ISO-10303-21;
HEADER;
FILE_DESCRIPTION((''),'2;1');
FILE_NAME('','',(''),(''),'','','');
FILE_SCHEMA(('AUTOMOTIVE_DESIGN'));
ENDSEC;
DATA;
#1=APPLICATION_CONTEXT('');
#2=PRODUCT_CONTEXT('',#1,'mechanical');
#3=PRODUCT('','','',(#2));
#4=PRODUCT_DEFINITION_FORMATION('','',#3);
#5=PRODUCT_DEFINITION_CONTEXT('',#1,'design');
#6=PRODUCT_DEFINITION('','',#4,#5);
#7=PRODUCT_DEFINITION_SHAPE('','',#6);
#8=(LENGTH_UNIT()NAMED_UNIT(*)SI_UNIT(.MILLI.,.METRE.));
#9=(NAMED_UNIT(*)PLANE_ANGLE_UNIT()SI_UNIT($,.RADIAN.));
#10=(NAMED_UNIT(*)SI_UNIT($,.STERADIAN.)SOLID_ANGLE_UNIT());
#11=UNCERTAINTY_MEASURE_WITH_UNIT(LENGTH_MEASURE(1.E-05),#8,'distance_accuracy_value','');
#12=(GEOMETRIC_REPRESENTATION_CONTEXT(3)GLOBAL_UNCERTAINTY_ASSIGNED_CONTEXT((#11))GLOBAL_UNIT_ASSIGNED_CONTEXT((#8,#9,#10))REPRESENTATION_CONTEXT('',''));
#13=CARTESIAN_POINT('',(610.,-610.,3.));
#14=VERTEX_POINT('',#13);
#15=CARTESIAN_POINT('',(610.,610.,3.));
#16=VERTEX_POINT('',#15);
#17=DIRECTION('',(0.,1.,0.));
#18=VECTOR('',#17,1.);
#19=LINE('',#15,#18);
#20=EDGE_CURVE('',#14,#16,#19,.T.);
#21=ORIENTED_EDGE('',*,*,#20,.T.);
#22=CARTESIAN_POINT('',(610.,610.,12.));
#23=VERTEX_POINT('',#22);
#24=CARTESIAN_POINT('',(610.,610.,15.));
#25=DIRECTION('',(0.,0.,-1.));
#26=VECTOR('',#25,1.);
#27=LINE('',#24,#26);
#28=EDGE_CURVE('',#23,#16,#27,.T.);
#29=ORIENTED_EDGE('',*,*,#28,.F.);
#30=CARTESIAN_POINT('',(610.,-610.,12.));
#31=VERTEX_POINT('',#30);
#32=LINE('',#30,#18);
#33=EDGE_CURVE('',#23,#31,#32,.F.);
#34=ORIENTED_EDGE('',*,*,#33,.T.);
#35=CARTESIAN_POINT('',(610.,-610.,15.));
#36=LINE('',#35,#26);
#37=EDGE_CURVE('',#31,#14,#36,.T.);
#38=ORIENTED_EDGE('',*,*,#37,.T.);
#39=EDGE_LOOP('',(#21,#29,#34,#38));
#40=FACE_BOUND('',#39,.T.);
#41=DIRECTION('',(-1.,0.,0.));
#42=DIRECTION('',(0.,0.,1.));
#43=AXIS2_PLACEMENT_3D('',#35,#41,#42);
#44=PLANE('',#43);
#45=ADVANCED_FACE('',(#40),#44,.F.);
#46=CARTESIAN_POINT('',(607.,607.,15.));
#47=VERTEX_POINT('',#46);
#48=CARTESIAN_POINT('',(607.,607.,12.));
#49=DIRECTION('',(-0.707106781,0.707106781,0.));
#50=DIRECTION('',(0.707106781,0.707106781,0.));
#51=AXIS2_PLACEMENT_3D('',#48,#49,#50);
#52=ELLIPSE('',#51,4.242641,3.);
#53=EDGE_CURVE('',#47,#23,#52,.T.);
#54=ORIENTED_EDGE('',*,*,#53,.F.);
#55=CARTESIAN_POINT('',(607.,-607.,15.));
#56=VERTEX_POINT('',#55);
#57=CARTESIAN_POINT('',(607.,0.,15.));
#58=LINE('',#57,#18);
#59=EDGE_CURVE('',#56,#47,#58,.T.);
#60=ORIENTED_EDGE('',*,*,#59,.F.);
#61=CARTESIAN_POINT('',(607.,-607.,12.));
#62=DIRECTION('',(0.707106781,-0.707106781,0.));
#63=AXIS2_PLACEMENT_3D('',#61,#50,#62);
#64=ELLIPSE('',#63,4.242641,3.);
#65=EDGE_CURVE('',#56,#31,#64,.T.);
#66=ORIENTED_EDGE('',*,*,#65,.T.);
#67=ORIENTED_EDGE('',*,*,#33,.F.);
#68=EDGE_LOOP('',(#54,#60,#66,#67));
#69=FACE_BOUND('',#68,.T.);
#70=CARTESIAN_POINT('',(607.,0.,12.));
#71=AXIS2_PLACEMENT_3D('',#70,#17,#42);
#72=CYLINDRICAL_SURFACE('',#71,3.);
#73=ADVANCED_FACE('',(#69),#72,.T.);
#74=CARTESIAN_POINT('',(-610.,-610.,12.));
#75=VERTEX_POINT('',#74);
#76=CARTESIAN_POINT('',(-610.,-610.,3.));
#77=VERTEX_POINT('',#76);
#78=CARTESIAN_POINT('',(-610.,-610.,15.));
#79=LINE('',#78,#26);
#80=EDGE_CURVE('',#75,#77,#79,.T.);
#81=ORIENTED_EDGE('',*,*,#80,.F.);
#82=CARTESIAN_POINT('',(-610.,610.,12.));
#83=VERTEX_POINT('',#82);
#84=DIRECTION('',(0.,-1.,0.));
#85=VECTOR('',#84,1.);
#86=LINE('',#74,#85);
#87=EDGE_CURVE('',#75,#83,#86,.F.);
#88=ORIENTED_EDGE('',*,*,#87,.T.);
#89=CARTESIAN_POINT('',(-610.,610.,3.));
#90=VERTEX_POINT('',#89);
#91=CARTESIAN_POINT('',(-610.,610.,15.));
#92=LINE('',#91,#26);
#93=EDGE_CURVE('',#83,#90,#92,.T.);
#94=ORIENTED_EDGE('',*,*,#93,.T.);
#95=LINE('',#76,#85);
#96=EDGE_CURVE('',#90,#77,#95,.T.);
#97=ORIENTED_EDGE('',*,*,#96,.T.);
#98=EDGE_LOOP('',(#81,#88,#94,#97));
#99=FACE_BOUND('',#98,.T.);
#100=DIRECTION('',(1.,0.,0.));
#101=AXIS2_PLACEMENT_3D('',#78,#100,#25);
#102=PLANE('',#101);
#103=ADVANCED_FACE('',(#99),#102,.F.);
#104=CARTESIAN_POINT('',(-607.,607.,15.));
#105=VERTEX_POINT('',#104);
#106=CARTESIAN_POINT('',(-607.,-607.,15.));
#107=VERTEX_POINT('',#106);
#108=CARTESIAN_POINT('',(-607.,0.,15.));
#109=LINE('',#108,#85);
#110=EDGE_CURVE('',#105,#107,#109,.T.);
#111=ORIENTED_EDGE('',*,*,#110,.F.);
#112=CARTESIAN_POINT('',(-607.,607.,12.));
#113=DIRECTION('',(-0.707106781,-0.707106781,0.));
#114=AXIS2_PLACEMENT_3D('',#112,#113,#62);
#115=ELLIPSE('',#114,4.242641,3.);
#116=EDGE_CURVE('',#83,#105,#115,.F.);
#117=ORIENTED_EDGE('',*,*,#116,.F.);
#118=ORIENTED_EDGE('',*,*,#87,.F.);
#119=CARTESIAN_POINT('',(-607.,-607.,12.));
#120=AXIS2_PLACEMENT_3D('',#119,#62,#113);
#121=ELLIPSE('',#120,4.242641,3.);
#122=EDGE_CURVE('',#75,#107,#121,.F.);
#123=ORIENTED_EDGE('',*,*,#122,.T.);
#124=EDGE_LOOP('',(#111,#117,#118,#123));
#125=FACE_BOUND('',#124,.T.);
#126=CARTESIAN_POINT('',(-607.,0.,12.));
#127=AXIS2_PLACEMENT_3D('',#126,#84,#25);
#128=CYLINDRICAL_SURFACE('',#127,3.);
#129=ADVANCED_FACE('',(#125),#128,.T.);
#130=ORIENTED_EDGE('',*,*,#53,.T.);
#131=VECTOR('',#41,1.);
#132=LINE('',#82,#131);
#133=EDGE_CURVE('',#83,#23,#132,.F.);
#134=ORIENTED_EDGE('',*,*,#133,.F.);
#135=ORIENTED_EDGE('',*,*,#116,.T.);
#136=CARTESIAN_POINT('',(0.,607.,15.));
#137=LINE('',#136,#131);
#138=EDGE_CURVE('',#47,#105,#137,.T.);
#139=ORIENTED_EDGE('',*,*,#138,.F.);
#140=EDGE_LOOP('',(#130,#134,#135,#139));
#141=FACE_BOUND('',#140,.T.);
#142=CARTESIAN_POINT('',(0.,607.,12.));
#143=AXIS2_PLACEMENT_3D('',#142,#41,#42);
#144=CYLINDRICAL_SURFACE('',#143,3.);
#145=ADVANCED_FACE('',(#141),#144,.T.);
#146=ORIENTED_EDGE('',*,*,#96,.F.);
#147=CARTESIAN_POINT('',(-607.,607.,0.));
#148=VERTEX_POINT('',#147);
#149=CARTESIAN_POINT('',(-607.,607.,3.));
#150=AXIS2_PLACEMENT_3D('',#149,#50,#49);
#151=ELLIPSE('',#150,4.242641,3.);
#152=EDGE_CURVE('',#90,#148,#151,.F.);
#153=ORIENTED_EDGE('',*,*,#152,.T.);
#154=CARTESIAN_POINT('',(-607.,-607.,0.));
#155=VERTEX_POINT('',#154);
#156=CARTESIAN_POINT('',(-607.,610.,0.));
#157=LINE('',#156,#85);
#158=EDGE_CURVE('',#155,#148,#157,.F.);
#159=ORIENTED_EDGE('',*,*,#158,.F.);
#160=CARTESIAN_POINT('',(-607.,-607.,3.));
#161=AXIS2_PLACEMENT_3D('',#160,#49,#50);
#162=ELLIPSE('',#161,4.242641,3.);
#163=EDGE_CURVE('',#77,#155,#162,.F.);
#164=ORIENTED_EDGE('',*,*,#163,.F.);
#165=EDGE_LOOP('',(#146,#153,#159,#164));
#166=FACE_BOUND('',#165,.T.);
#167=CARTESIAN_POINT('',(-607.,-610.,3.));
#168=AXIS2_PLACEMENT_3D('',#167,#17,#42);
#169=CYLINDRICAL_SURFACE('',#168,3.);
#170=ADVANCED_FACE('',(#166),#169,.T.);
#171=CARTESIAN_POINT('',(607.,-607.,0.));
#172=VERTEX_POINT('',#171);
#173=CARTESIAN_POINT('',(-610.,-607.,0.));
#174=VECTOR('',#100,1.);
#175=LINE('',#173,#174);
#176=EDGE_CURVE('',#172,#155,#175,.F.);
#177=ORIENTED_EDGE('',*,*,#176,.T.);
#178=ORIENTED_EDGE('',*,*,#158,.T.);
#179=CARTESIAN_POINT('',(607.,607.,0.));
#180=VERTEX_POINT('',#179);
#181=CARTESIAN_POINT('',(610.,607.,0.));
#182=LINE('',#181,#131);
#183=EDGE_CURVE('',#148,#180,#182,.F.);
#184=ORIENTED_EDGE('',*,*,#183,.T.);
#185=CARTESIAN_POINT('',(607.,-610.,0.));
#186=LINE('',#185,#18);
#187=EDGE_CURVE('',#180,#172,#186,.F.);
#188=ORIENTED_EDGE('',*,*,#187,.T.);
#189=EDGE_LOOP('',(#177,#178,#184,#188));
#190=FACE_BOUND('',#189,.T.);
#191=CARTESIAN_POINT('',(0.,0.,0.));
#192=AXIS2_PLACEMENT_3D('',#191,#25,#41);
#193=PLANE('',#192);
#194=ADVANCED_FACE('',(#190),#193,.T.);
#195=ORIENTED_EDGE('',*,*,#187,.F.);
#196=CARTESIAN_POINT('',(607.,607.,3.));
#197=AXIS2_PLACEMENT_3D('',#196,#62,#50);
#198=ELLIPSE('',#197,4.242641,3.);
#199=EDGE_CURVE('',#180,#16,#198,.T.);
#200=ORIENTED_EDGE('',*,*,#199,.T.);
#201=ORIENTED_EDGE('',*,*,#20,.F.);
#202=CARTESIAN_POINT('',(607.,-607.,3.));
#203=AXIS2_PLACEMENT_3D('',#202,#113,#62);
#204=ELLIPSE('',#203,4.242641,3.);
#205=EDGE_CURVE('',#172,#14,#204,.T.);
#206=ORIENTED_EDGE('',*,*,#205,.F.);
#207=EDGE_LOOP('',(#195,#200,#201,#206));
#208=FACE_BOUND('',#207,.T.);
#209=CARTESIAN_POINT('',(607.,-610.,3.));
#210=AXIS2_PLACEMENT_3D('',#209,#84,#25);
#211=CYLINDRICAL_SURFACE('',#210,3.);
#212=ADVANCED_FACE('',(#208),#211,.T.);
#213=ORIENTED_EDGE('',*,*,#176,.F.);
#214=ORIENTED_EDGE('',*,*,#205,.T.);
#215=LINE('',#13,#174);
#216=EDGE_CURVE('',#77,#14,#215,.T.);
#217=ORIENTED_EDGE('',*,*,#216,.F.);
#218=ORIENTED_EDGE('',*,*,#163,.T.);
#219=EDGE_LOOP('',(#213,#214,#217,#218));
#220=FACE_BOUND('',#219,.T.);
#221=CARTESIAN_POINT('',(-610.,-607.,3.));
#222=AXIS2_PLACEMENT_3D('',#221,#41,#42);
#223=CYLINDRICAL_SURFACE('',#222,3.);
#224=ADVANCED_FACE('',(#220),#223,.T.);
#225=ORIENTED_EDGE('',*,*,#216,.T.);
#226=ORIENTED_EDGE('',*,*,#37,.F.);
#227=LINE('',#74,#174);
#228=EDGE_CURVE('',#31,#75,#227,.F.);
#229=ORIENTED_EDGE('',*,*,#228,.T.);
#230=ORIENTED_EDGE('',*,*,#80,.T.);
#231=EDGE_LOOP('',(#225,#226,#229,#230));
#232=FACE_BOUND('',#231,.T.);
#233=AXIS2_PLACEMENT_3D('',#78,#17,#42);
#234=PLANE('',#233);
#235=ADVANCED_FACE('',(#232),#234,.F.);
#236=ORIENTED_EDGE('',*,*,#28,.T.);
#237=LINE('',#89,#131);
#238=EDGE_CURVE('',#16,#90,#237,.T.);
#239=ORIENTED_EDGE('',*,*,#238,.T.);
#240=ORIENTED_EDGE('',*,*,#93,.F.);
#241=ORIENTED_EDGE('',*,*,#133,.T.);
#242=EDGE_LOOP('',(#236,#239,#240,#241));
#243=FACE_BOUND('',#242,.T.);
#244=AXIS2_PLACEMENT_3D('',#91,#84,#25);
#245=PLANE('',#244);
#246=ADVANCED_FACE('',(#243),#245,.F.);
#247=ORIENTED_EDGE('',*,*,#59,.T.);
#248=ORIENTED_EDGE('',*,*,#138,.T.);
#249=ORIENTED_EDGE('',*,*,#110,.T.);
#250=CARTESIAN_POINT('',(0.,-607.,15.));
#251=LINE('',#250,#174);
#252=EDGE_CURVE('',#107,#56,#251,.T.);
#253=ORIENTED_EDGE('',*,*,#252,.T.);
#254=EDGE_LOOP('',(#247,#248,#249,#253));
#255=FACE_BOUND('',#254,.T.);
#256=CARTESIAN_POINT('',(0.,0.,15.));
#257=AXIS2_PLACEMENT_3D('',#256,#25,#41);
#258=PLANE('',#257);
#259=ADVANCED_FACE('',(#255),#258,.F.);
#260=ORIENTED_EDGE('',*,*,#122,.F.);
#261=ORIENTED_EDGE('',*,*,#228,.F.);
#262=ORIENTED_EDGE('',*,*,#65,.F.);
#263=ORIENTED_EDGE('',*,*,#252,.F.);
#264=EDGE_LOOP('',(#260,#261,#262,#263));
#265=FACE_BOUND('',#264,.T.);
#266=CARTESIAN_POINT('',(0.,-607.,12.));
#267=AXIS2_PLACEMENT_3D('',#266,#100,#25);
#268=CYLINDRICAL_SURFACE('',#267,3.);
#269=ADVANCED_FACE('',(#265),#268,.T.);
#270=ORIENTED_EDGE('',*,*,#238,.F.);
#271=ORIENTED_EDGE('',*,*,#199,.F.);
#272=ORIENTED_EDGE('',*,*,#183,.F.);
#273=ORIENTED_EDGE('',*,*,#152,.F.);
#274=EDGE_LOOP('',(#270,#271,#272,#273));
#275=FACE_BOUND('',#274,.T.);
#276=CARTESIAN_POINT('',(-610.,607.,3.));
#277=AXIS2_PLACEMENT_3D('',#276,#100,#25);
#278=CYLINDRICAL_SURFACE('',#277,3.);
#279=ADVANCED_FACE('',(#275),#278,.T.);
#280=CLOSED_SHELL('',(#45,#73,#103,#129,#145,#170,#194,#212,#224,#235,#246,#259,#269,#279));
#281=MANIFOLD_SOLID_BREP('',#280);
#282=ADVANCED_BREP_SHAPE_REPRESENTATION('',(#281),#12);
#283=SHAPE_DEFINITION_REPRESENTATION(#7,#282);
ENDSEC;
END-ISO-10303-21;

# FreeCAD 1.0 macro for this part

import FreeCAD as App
import Part
import Sketcher
from FreeCAD import Vector


def edges_at(feature, points):
    """Names of the edges that pass closest to the given points."""
    edges = feature.Shape.Edges
    near = lambda p: min(range(len(edges)), key=lambda i: edges[i].distToShape(Part.Vertex(*p))[0])
    return sorted({f"Edge{near(p) + 1}" for p in points})


def add_polygon(sketch, points):
    """Adds a closed chain of lines whose ends are joined by coincident constraints."""
    first, n = sketch.GeometryCount, len(points)
    for a, b in zip(points, points[1:] + points[:1]):
        sketch.addGeometry(Part.LineSegment(App.Vector(*a, 0), App.Vector(*b, 0)), False)
    for i in range(n):
        sketch.addConstraint(Sketcher.Constraint("Coincident", first + i, 2, first + (i + 1) % n, 1))

doc = App.newDocument("Part")
body = doc.addObject("PartDesign::Body", "Body")

sketch1 = body.newObject("Sketcher::SketchObject", "Sketch")
sketch1.AttachmentSupport = (doc.getObject("XY_Plane"), [""])
sketch1.MapMode = "FlatFace"
add_polygon(sketch1, [(-610, 610), (-610, -610), (610, -610), (610, 610)])
sketch1.addConstraint([
    Sketcher.Constraint("Vertical", 0),
    Sketcher.Constraint("Horizontal", 1),
    Sketcher.Constraint("Vertical", 2),
    Sketcher.Constraint("Horizontal", 3),
    Sketcher.Constraint("Symmetric", 0, 2, 2, 2, -1, 1),
    Sketcher.Constraint("Equal", 3, 0),
    Sketcher.Constraint("DistanceX", 1, 1, 1, 2, 1220.0),
])
pad1 = body.newObject("PartDesign::Pad", "Pad")
pad1.Profile = sketch1
pad1.Length = 15
doc.recompute()

fillet = body.newObject("PartDesign::Fillet", "Fillet")
fillet.Base = (pad1, edges_at(pad1, [
    (610, 0, 15),
    (0, 610, 15),
    (-610, 0, 15),
    (0, 610, 0),
    (610, 0, 0),
    (0, -610, 0),
    (-610, 0, 0),
    (0, -610, 15),
]))
fillet.Radius = 3

doc.recompute()
